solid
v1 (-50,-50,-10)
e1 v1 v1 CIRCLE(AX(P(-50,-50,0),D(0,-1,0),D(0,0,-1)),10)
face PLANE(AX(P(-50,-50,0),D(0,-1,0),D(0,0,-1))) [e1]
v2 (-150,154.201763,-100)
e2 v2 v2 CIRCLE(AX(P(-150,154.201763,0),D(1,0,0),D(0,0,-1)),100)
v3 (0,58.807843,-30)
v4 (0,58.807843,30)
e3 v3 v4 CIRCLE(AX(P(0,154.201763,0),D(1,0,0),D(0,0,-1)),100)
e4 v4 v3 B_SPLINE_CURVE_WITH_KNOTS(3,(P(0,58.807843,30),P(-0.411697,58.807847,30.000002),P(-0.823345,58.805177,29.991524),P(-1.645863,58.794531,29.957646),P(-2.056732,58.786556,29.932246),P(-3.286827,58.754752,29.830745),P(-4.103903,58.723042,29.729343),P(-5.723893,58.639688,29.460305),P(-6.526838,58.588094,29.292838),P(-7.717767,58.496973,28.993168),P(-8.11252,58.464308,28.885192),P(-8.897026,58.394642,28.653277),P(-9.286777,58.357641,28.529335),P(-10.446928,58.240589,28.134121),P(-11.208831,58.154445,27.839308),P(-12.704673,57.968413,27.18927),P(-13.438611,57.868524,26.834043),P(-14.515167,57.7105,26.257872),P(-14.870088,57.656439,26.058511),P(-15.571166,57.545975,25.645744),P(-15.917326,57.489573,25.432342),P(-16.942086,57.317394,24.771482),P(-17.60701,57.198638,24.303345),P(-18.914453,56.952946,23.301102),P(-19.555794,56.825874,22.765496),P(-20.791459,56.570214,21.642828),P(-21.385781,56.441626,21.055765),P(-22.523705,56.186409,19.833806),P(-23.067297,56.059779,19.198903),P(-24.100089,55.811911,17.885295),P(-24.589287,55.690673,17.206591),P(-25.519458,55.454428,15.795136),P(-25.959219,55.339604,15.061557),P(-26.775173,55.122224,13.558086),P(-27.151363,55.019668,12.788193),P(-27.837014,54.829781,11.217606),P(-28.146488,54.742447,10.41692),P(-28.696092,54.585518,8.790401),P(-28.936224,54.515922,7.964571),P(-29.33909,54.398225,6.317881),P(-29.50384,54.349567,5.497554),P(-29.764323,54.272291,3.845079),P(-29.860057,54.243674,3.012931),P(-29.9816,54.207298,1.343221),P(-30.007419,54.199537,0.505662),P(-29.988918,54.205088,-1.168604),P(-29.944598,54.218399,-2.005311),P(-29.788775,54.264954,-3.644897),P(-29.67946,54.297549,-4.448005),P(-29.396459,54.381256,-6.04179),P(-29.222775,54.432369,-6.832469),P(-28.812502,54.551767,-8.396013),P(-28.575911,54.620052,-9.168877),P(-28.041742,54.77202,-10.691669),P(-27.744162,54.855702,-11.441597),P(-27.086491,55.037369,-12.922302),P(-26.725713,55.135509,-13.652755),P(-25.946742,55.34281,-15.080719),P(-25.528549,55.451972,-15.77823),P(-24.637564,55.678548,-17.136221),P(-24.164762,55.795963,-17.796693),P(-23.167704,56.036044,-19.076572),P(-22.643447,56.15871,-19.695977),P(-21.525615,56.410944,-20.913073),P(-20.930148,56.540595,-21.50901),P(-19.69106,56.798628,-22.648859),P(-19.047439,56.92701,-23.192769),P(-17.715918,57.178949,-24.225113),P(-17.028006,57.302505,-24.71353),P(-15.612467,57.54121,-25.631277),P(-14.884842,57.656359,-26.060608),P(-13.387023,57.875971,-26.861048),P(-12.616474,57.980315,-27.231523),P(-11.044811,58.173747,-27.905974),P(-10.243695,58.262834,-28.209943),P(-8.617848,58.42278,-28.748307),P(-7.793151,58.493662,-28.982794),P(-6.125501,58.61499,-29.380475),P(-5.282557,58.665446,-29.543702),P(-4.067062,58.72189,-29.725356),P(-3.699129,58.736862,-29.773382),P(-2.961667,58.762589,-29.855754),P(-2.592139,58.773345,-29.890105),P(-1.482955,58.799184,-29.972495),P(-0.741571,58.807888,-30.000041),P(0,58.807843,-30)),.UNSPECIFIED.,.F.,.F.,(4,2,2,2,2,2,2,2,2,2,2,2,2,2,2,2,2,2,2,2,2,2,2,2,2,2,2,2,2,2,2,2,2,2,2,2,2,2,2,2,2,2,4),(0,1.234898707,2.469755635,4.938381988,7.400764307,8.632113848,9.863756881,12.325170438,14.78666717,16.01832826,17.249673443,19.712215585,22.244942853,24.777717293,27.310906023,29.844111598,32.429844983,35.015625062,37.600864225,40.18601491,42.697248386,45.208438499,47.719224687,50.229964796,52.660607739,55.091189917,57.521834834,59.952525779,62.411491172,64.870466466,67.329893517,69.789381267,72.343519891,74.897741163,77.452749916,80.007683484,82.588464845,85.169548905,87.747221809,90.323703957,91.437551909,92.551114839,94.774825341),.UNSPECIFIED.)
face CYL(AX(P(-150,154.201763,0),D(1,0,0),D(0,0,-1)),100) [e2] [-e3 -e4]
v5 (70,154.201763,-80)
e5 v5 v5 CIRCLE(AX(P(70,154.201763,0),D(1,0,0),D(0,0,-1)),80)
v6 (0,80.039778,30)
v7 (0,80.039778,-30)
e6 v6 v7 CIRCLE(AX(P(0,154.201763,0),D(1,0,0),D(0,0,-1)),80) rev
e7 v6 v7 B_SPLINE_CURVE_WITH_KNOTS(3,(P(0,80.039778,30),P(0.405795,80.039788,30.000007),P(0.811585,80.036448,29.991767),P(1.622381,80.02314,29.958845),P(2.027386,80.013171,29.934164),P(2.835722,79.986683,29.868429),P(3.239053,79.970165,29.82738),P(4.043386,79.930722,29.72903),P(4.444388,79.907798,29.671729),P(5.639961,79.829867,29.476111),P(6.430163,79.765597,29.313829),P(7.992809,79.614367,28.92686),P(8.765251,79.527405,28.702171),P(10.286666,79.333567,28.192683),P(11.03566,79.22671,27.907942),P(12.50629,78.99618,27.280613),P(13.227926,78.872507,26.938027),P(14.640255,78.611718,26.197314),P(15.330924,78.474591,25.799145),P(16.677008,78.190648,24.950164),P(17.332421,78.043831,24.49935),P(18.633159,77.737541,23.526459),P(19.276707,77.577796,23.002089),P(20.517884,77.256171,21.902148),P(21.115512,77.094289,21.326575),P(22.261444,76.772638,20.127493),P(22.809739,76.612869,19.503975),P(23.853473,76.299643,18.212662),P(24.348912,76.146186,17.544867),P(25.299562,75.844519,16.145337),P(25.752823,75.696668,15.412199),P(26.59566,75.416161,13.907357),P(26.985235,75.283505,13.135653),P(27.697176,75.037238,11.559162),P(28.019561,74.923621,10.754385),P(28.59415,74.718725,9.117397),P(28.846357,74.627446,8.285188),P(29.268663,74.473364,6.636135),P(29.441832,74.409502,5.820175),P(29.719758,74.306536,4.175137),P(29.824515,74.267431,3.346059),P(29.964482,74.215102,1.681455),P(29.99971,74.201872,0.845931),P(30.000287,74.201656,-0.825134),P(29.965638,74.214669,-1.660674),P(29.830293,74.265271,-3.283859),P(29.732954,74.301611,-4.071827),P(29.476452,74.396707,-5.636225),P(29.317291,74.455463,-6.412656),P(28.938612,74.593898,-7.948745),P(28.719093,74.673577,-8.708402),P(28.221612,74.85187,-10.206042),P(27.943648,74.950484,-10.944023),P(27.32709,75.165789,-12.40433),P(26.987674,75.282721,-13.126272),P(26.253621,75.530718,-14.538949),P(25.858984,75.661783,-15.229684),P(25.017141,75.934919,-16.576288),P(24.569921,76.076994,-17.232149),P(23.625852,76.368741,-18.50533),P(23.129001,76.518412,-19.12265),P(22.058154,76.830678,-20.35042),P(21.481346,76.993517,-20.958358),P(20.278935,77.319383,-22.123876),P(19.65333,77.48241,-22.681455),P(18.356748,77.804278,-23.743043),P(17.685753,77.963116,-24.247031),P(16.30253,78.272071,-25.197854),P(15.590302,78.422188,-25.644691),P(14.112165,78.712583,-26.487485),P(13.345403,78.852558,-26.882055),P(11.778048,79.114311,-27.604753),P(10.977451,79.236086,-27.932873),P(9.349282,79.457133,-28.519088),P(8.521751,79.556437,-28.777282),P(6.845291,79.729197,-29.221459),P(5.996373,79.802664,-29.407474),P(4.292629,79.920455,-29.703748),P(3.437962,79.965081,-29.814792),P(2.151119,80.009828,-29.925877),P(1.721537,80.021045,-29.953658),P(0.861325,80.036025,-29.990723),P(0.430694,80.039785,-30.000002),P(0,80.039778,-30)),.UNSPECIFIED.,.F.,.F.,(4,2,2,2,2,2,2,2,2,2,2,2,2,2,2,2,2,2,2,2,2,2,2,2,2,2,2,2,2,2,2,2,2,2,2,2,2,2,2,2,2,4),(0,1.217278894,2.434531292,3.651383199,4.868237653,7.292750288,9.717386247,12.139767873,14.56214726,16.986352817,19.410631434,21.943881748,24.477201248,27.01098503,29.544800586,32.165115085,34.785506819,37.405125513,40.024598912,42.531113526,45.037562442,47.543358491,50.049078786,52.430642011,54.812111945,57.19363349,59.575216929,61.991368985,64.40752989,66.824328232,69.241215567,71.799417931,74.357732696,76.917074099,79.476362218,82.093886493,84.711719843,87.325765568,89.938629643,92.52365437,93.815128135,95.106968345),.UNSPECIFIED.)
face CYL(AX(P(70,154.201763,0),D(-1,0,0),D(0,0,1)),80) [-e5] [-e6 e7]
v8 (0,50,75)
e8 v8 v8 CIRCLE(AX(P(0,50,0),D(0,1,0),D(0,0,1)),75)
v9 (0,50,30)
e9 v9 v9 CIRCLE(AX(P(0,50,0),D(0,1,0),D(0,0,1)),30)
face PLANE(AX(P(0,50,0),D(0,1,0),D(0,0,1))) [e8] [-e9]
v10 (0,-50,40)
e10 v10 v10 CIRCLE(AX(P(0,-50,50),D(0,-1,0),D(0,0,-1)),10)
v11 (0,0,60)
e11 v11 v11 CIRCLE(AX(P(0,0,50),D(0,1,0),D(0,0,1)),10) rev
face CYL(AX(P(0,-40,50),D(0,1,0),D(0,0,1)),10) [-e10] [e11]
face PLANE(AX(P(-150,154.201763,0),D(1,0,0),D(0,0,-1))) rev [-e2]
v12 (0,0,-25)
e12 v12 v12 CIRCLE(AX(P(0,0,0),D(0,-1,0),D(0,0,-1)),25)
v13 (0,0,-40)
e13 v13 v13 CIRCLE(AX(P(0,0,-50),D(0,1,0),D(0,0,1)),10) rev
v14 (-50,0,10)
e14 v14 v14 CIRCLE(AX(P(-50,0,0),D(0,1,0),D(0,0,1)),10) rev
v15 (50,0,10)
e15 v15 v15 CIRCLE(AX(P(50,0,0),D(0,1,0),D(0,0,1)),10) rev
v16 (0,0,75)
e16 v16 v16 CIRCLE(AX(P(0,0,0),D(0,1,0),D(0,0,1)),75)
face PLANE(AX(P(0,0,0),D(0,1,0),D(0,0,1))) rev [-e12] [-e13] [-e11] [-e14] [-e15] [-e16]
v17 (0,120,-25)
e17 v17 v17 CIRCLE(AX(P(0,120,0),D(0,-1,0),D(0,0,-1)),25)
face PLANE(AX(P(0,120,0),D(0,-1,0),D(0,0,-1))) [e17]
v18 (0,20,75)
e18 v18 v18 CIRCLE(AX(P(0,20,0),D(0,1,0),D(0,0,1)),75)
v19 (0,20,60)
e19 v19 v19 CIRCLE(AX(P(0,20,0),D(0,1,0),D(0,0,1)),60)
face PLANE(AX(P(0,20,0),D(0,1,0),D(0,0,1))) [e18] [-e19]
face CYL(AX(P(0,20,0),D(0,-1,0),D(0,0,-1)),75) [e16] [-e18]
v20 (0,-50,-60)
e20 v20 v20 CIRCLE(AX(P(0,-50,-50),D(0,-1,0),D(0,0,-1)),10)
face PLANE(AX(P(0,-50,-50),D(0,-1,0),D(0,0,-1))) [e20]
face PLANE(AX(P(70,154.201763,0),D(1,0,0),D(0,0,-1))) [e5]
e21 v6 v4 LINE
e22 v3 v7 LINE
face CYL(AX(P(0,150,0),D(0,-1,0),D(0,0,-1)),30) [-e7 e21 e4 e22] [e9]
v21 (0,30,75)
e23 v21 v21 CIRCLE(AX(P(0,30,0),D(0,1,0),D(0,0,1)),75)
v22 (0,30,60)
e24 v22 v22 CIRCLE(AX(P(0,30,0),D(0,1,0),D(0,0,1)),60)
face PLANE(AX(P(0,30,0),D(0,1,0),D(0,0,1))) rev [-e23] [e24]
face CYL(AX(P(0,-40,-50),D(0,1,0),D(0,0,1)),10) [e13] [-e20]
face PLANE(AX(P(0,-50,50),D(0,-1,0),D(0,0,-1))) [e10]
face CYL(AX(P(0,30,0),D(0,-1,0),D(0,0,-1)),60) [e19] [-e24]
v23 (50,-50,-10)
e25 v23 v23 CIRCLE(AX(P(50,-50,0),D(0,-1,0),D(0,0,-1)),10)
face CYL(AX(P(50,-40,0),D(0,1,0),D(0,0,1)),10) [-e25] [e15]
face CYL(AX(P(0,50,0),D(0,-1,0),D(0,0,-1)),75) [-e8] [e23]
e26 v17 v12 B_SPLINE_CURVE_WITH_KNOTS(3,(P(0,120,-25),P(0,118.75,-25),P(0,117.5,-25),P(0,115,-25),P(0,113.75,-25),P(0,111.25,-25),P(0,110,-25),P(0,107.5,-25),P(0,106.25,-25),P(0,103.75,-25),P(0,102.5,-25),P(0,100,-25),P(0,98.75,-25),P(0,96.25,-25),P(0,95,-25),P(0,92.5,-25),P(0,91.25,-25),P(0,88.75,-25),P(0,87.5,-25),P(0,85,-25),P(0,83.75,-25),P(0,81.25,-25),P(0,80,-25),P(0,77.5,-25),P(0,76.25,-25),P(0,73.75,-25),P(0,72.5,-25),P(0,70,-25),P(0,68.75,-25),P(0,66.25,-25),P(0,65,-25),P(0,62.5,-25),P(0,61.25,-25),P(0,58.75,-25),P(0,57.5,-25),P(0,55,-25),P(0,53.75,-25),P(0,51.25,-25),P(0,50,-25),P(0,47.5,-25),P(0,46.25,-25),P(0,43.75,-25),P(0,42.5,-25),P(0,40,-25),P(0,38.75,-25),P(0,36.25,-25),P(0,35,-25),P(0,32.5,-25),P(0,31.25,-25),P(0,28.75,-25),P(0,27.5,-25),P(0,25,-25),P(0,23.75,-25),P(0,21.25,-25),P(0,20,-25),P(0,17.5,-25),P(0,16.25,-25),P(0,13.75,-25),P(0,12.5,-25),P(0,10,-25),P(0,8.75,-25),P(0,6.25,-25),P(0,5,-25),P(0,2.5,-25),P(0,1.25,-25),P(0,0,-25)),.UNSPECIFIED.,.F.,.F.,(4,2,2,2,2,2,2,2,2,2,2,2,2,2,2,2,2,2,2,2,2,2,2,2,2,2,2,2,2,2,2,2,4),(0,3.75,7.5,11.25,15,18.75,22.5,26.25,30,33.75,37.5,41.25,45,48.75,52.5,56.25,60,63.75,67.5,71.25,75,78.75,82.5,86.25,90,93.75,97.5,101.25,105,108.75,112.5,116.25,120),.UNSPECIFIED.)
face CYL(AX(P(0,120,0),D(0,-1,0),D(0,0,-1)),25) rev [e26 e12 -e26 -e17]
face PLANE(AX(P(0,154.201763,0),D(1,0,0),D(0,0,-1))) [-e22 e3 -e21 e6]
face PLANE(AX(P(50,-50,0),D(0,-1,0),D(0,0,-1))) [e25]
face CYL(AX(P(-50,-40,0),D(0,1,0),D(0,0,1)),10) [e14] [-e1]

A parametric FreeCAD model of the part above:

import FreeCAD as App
import Part
import Sketcher

V = App.Vector

doc = App.newDocument("Part")
body = doc.addObject("PartDesign::Body", "Body")

sketch1 = body.newObject("Sketcher::SketchObject", "Sketch")
sketch1.AttachmentSupport = (doc.getObject("XZ_Plane"), [""])
sketch1.MapMode = "FlatFace"
sketch1.addGeometry(Part.Circle(V(0, 0, 0), V(0, 0, 1), 75), False)
sketch1.addConstraint(Sketcher.Constraint("Coincident", 0, 3, -1, 1))
sketch1.addConstraint(Sketcher.Constraint("Diameter", 0, 150.0))
pad1 = body.newObject("PartDesign::Pad", "Pad")
pad1.Profile = sketch1
pad1.Length = 20
pad1.Reversed = True

sketch2 = body.newObject("Sketcher::SketchObject", "Sketch001")
sketch2.AttachmentSupport = (doc.getObject("XZ_Plane"), [""])
sketch2.MapMode = "FlatFace"
sketch2.AttachmentOffset = App.Placement(V(0, 0, -20), App.Rotation())
sketch2.addGeometry(Part.Circle(V(0, 0, 0), V(0, 0, 1), 60), False)
sketch2.addConstraint(Sketcher.Constraint("Coincident", 0, 3, -1, 1))
sketch2.addConstraint(Sketcher.Constraint("Diameter", 0, 120.0))
pad2 = body.newObject("PartDesign::Pad", "Pad001")
pad2.Profile = sketch2
pad2.Length = 10
pad2.Reversed = True

sketch3 = body.newObject("Sketcher::SketchObject", "Sketch002")
sketch3.AttachmentSupport = (doc.getObject("XZ_Plane"), [""])
sketch3.MapMode = "FlatFace"
sketch3.AttachmentOffset = App.Placement(V(0, 0, -30), App.Rotation())
sketch3.addGeometry(Part.Circle(V(0, 0, 0), V(0, 0, 1), 75), False)
sketch3.addConstraint(Sketcher.Constraint("Coincident", 0, 3, -1, 1))
sketch3.addConstraint(Sketcher.Constraint("Diameter", 0, 150.0))
pad3 = body.newObject("PartDesign::Pad", "Pad002")
pad3.Profile = sketch3
pad3.Length = 20
pad3.Reversed = True

sketch4 = body.newObject("Sketcher::SketchObject", "Sketch003")
sketch4.AttachmentSupport = (doc.getObject("XZ_Plane"), [""])
sketch4.MapMode = "FlatFace"
sketch4.AttachmentOffset = App.Placement(V(0, 0, -50), App.Rotation())
sketch4.addGeometry(Part.Circle(V(0, 0, 0), V(0, 0, 1), 30), False)
sketch4.addConstraint(Sketcher.Constraint("Coincident", 0, 3, -1, 1))
sketch4.addConstraint(Sketcher.Constraint("Diameter", 0, 60.0))
pad4 = body.newObject("PartDesign::Pad", "Pad003")
pad4.Profile = sketch4
pad4.Length = 100
pad4.Reversed = True

sketch5 = body.newObject("Sketcher::SketchObject", "Sketch004")
sketch5.AttachmentSupport = (doc.getObject("YZ_Plane"), [""])
sketch5.MapMode = "FlatFace"
sketch5.addGeometry(Part.Circle(V(154, 0, 0), V(0, 0, 1), 100), False)
sketch5.addConstraint(Sketcher.Constraint("PointOnObject", 0, 3, -1))
sketch5.addConstraint(Sketcher.Constraint("Diameter", 0, 200.0))
sketch5.addConstraint(Sketcher.Constraint("DistanceX", -1, 1, 0, 3, 154.201763))
pad5 = body.newObject("PartDesign::Pad", "Pad004")
pad5.Profile = sketch5
pad5.Length = 150
pad5.Reversed = True

sketch6 = body.newObject("Sketcher::SketchObject", "Sketch005")
sketch6.AttachmentSupport = (doc.getObject("YZ_Plane"), [""])
sketch6.MapMode = "FlatFace"
sketch6.addGeometry(Part.Circle(V(154, 0, 0), V(0, 0, 1), 80), False)
sketch6.addConstraint(Sketcher.Constraint("PointOnObject", 0, 3, -1))
sketch6.addConstraint(Sketcher.Constraint("Diameter", 0, 160.0))
sketch6.addConstraint(Sketcher.Constraint("DistanceX", -1, 1, 0, 3, 154.201763))
pad6 = body.newObject("PartDesign::Pad", "Pad005")
pad6.Profile = sketch6
pad6.Length = 70

sketch7 = body.newObject("Sketcher::SketchObject", "Sketch006")
sketch7.AttachmentSupport = (doc.getObject("XZ_Plane"), [""])
sketch7.MapMode = "FlatFace"
sketch7.addGeometry(Part.Circle(V(0, -50, 0), V(0, 0, 1), 10), False)
sketch7.addGeometry(Part.Circle(V(50, 0, 0), V(0, 0, 1), 10), False)
sketch7.addGeometry(Part.Circle(V(0, 50, 0), V(0, 0, 1), 10), False)
sketch7.addGeometry(Part.Circle(V(-50, 0, 0), V(0, 0, 1), 10), False)
sketch7.addConstraint(Sketcher.Constraint("Equal", 0, 1))
sketch7.addConstraint(Sketcher.Constraint("Equal", 1, 2))
sketch7.addConstraint(Sketcher.Constraint("Equal", 2, 3))
sketch7.addConstraint(Sketcher.Constraint("Symmetric", 0, 3, 2, 3, -1, 1))
sketch7.addConstraint(Sketcher.Constraint("Symmetric", 1, 3, 3, 3, -1, 1))
sketch7.addConstraint(Sketcher.Constraint("PointOnObject", 0, 3, -2))
sketch7.addConstraint(Sketcher.Constraint("PointOnObject", 1, 3, -1))
sketch7.addConstraint(Sketcher.Constraint("Diameter", 0, 20.0))
sketch7.addConstraint(Sketcher.Constraint("DistanceY", 0, 3, -1, 1, 50.0))
sketch7.addConstraint(Sketcher.Constraint("DistanceX", -1, 1, 1, 3, 50.0))
pad7 = body.newObject("PartDesign::Pad", "Pad006")
pad7.Profile = sketch7
pad7.Length = 40

sketch8 = body.newObject("Sketcher::SketchObject", "Sketch007")
sketch8.AttachmentSupport = (doc.getObject("XZ_Plane"), [""])
sketch8.MapMode = "FlatFace"
sketch8.addGeometry(Part.Circle(V(0, 0, 0), V(0, 0, 1), 25), False)
sketch8.addConstraint(Sketcher.Constraint("Coincident", 0, 3, -1, 1))
sketch8.addConstraint(Sketcher.Constraint("Diameter", 0, 50.0))
pocket1 = body.newObject("PartDesign::Pocket", "Pocket")
pocket1.Profile = sketch8
pocket1.Length = 120

sketch9 = body.newObject("Sketcher::SketchObject", "Sketch008")
sketch9.AttachmentSupport = (doc.getObject("XZ_Plane"), [""])
sketch9.MapMode = "FlatFace"
sketch9.AttachmentOffset = App.Placement(V(0, 0, 40), App.Rotation())
sketch9.addGeometry(Part.Circle(V(0, -50, 0), V(0, 0, 1), 10), False)
sketch9.addGeometry(Part.Circle(V(-50, 0, 0), V(0, 0, 1), 10), False)
sketch9.addGeometry(Part.Circle(V(0, 50, 0), V(0, 0, 1), 10), False)
sketch9.addGeometry(Part.Circle(V(50, 0, 0), V(0, 0, 1), 10), False)
sketch9.addConstraint(Sketcher.Constraint("Equal", 0, 1))
sketch9.addConstraint(Sketcher.Constraint("Equal", 1, 2))
sketch9.addConstraint(Sketcher.Constraint("Equal", 2, 3))
sketch9.addConstraint(Sketcher.Constraint("Symmetric", 0, 3, 2, 3, -1, 1))
sketch9.addConstraint(Sketcher.Constraint("Symmetric", 1, 3, 3, 3, -1, 1))
sketch9.addConstraint(Sketcher.Constraint("PointOnObject", 0, 3, -2))
sketch9.addConstraint(Sketcher.Constraint("PointOnObject", 1, 3, -1))
sketch9.addConstraint(Sketcher.Constraint("Diameter", 0, 20.0))
sketch9.addConstraint(Sketcher.Constraint("DistanceY", 0, 3, -1, 1, 50.0))
sketch9.addConstraint(Sketcher.Constraint("DistanceX", 1, 3, -1, 1, 50.0))
pad8 = body.newObject("PartDesign::Pad", "Pad007")
pad8.Profile = sketch9
pad8.Length = 10

doc.recompute()
